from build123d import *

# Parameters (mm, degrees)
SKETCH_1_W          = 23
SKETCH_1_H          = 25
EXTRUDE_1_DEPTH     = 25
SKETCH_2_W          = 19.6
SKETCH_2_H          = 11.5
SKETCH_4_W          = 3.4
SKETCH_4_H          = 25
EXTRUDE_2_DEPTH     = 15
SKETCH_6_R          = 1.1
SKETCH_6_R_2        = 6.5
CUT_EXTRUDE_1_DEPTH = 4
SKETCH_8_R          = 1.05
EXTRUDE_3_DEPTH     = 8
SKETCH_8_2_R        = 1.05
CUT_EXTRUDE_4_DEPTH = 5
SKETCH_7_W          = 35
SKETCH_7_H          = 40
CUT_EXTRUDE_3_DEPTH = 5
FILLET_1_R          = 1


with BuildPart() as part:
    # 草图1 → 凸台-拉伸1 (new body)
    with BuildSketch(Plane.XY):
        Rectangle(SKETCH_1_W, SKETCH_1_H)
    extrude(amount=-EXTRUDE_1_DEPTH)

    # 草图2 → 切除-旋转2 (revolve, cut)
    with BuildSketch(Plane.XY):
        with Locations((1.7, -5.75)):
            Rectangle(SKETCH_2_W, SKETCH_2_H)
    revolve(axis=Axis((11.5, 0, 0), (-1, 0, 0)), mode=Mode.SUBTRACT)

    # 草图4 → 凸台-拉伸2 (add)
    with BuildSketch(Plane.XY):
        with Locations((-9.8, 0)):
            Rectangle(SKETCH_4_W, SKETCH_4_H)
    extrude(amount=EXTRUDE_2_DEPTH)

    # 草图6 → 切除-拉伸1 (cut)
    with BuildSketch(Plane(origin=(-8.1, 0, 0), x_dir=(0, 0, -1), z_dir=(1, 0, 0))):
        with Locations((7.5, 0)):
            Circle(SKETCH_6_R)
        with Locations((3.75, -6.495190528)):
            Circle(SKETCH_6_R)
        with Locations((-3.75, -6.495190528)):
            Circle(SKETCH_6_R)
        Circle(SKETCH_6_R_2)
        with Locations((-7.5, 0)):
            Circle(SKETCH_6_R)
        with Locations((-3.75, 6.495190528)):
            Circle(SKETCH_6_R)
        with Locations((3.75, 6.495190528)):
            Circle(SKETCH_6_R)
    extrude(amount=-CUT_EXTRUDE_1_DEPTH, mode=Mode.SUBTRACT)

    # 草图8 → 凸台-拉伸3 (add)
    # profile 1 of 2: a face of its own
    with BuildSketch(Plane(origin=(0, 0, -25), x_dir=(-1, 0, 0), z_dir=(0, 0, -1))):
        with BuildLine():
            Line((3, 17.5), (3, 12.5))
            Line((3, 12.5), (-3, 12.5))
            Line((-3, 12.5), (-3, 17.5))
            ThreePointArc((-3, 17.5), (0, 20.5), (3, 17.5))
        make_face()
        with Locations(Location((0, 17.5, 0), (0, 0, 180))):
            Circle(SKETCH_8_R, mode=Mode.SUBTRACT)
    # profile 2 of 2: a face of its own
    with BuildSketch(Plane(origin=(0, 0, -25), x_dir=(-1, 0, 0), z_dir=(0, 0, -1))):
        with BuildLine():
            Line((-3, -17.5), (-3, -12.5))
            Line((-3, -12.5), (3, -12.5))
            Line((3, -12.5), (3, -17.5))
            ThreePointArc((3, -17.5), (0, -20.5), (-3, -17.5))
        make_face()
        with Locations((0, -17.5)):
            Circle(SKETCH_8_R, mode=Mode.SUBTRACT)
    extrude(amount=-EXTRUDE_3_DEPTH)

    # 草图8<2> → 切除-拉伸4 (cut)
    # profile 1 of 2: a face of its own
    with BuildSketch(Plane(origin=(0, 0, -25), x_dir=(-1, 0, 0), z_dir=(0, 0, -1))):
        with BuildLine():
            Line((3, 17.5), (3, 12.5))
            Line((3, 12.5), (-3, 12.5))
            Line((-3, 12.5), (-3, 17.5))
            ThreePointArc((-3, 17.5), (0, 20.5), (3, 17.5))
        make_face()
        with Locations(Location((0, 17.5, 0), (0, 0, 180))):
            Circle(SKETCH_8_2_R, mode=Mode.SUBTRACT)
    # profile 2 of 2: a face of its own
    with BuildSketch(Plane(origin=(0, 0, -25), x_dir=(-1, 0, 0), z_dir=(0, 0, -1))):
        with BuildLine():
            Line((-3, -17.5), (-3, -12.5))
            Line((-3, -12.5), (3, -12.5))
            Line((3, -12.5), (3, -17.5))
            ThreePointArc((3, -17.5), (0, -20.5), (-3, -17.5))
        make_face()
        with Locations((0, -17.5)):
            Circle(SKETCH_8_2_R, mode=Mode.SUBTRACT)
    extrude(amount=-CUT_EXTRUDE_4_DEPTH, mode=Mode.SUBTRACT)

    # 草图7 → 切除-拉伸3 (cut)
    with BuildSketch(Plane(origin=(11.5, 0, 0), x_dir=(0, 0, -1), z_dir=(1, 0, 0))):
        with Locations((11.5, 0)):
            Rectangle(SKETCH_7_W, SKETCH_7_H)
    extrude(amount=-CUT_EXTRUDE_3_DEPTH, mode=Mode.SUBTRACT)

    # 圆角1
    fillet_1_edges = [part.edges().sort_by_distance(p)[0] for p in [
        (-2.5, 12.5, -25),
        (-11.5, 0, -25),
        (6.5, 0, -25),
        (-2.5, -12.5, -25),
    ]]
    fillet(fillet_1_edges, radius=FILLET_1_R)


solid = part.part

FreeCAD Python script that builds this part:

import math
import FreeCAD as App
import Part
import Sketcher

V = App.Vector


def edges_at(feature, points):
    """Names of the edges that pass closest to the given points."""
    edges = feature.Shape.Edges
    near = lambda p: min(range(len(edges)), key=lambda i: edges[i].distToShape(Part.Vertex(*p))[0])
    return sorted({f"Edge{near(p) + 1}" for p in points})

doc = App.newDocument("Part")
body = doc.addObject("PartDesign::Body", "Body")

sketch1 = body.newObject("Sketcher::SketchObject", "Sketch")
sketch1.AttachmentSupport = (doc.getObject("XY_Plane"), [""])
sketch1.MapMode = "FlatFace"
sketch1.addGeometry(Part.LineSegment(V(-12, 12, 0), V(-12, -12, 0)), False)
sketch1.addGeometry(Part.LineSegment(V(-12, -12, 0), V(12, -12, 0)), False)
sketch1.addGeometry(Part.LineSegment(V(12, -12, 0), V(12, 12, 0)), False)
sketch1.addGeometry(Part.LineSegment(V(12, 12, 0), V(-12, 12, 0)), False)
sketch1.addConstraint(Sketcher.Constraint("Coincident", 0, 2, 1, 1))
sketch1.addConstraint(Sketcher.Constraint("Coincident", 1, 2, 2, 1))
sketch1.addConstraint(Sketcher.Constraint("Coincident", 2, 2, 3, 1))
sketch1.addConstraint(Sketcher.Constraint("Coincident", 3, 2, 0, 1))
sketch1.addConstraint(Sketcher.Constraint("Vertical", 0))
sketch1.addConstraint(Sketcher.Constraint("Horizontal", 1))
sketch1.addConstraint(Sketcher.Constraint("Vertical", 2))
sketch1.addConstraint(Sketcher.Constraint("Horizontal", 3))
sketch1.addConstraint(Sketcher.Constraint("Symmetric", 0, 2, 2, 2, -1, 1))
sketch1.addConstraint(Sketcher.Constraint("DistanceX", 1, 1, 1, 2, 23.0))
sketch1.addConstraint(Sketcher.Constraint("DistanceY", 0, 2, 0, 1, 25.0))
pad1 = body.newObject("PartDesign::Pad", "Pad")
pad1.Profile = sketch1
pad1.Length = 25
pad1.Reversed = True

sketch2 = body.newObject("Sketcher::SketchObject", "Sketch001")
sketch2.AttachmentSupport = (doc.getObject("XY_Plane"), [""])
sketch2.MapMode = "FlatFace"
sketch2.addGeometry(Part.LineSegment(V(-8, 0, 0), V(-8, -12, 0)), False)
sketch2.addGeometry(Part.LineSegment(V(-8, -12, 0), V(12, -12, 0)), False)
sketch2.addGeometry(Part.LineSegment(V(12, -12, 0), V(12, 0, 0)), False)
sketch2.addGeometry(Part.LineSegment(V(12, 0, 0), V(-8, 0, 0)), False)
sketch2.addConstraint(Sketcher.Constraint("Coincident", 0, 2, 1, 1))
sketch2.addConstraint(Sketcher.Constraint("Coincident", 1, 2, 2, 1))
sketch2.addConstraint(Sketcher.Constraint("Coincident", 2, 2, 3, 1))
sketch2.addConstraint(Sketcher.Constraint("Coincident", 3, 2, 0, 1))
sketch2.addConstraint(Sketcher.Constraint("Vertical", 0))
sketch2.addConstraint(Sketcher.Constraint("Horizontal", 1))
sketch2.addConstraint(Sketcher.Constraint("Vertical", 2))
sketch2.addConstraint(Sketcher.Constraint("Horizontal", 3))
sketch2.addConstraint(Sketcher.Constraint("PointOnObject", 2, 2, -1))
sketch2.addConstraint(Sketcher.Constraint("DistanceX", 1, 1, 1, 2, 19.6))
sketch2.addConstraint(Sketcher.Constraint("DistanceY", 0, 2, 0, 1, 11.5))
sketch2.addConstraint(Sketcher.Constraint("DistanceX", 0, 2, -1, 1, 8.1))
groove = body.newObject("PartDesign::Groove", "Groove")
groove.Profile = sketch2
groove.ReferenceAxis = (sketch2, ["H_Axis"])
groove.Angle = 360

sketch3 = body.newObject("Sketcher::SketchObject", "Sketch002")
sketch3.AttachmentSupport = (doc.getObject("XY_Plane"), [""])
sketch3.MapMode = "FlatFace"
sketch3.addGeometry(Part.LineSegment(V(-11.5, 12.5, 0), V(-11.5, -12.5, 0)), False)
sketch3.addGeometry(Part.LineSegment(V(-11.5, -12.5, 0), V(-8.1, -12.5, 0)), False)
sketch3.addGeometry(Part.LineSegment(V(-8.1, -12.5, 0), V(-8.1, 12.5, 0)), False)
sketch3.addGeometry(Part.LineSegment(V(-8.1, 12.5, 0), V(-11.5, 12.5, 0)), False)
sketch3.addConstraint(Sketcher.Constraint("Coincident", 0, 2, 1, 1))
sketch3.addConstraint(Sketcher.Constraint("Coincident", 1, 2, 2, 1))
sketch3.addConstraint(Sketcher.Constraint("Coincident", 2, 2, 3, 1))
sketch3.addConstraint(Sketcher.Constraint("Coincident", 3, 2, 0, 1))
sketch3.addConstraint(Sketcher.Constraint("Vertical", 0))
sketch3.addConstraint(Sketcher.Constraint("Horizontal", 1))
sketch3.addConstraint(Sketcher.Constraint("Vertical", 2))
sketch3.addConstraint(Sketcher.Constraint("Horizontal", 3))
sketch3.addConstraint(Sketcher.Constraint("DistanceY", 0, 2, 0, 1, 25.0))
sketch3.addConstraint(Sketcher.Constraint("DistanceX", 1, 1, 1, 2, 3.4))
sketch3.addConstraint(Sketcher.Constraint("DistanceX", 0, 2, -1, 1, 11.5))
sketch3.addConstraint(Sketcher.Constraint("DistanceY", 0, 2, -1, 1, 12.5))
pad2 = body.newObject("PartDesign::Pad", "Pad001")
pad2.Profile = sketch3
pad2.Length = 15

sketch4 = body.newObject("Sketcher::SketchObject", "Sketch003")
sketch4.AttachmentSupport = (doc.getObject("YZ_Plane"), [""])
sketch4.MapMode = "FlatFace"
sketch4.AttachmentOffset = App.Placement(V(0, 0, -8.1), App.Rotation())
sketch4.addGeometry(Part.ArcOfCircle(Part.Circle(V(0, 0, 0), V(0, 0, 1), 6.5), math.radians(154), math.radians(206)), False)
sketch4.addGeometry(Part.ArcOfCircle(Part.Circle(V(-6.5, -3.8, 0), V(0, 0, 1), 1.1), math.radians(53), math.radians(367)), False)
sketch4.addGeometry(Part.ArcOfCircle(Part.Circle(V(0, 0, 0), V(0, 0, 1), 6.5), math.radians(-146), math.radians(-94)), False)
sketch4.addGeometry(Part.ArcOfCircle(Part.Circle(V(0, -7.5, 0), V(0, 0, 1), 1.1), math.radians(113), math.radians(427)), False)
sketch4.addGeometry(Part.ArcOfCircle(Part.Circle(V(0, 0, 0), V(0, 0, 1), 6.5), math.radians(-86), math.radians(-34)), False)
sketch4.addGeometry(Part.ArcOfCircle(Part.Circle(V(6.5, -3.8, 0), V(0, 0, 1), 1.1), math.radians(173), math.radians(487)), False)
sketch4.addGeometry(Part.ArcOfCircle(Part.Circle(V(0, 0, 0), V(0, 0, 1), 6.5), math.radians(-26), math.radians(26)), False)
sketch4.addGeometry(Part.ArcOfCircle(Part.Circle(V(6.5, 3.8, 0), V(0, 0, 1), 1.1), math.radians(-127), math.radians(187)), False)
sketch4.addGeometry(Part.ArcOfCircle(Part.Circle(V(0, 0, 0), V(0, 0, 1), 6.5), math.radians(34), math.radians(86)), False)
sketch4.addGeometry(Part.ArcOfCircle(Part.Circle(V(0, 7.5, 0), V(0, 0, 1), 1.1), math.radians(-67), math.radians(247)), False)
sketch4.addGeometry(Part.ArcOfCircle(Part.Circle(V(0, 0, 0), V(0, 0, 1), 6.5), math.radians(94), math.radians(146)), False)
sketch4.addGeometry(Part.ArcOfCircle(Part.Circle(V(-6.5, 3.8, 0), V(0, 0, 1), 1.1), math.radians(-7), math.radians(307)), False)
sketch4.addConstraint(Sketcher.Constraint("Coincident", 0, 2, 1, 1))
sketch4.addConstraint(Sketcher.Constraint("Coincident", 1, 2, 2, 1))
sketch4.addConstraint(Sketcher.Constraint("Coincident", 2, 2, 3, 1))
sketch4.addConstraint(Sketcher.Constraint("Coincident", 3, 2, 4, 1))
sketch4.addConstraint(Sketcher.Constraint("Coincident", 4, 2, 5, 1))
sketch4.addConstraint(Sketcher.Constraint("Coincident", 5, 2, 6, 1))
sketch4.addConstraint(Sketcher.Constraint("Coincident", 6, 2, 7, 1))
sketch4.addConstraint(Sketcher.Constraint("Coincident", 7, 2, 8, 1))
sketch4.addConstraint(Sketcher.Constraint("Coincident", 8, 2, 9, 1))
sketch4.addConstraint(Sketcher.Constraint("Coincident", 9, 2, 10, 1))
sketch4.addConstraint(Sketcher.Constraint("Coincident", 10, 2, 11, 1))
sketch4.addConstraint(Sketcher.Constraint("Coincident", 11, 2, 0, 1))
sketch4.addConstraint(Sketcher.Constraint("Coincident", 0, 3, -1, 1))
sketch4.addConstraint(Sketcher.Constraint("Coincident", 2, 3, -1, 1))
sketch4.addConstraint(Sketcher.Constraint("Coincident", 4, 3, -1, 1))
sketch4.addConstraint(Sketcher.Constraint("Coincident", 6, 3, -1, 1))
sketch4.addConstraint(Sketcher.Constraint("Coincident", 8, 3, -1, 1))
sketch4.addConstraint(Sketcher.Constraint("Coincident", 10, 3, -1, 1))
sketch4.addConstraint(Sketcher.Constraint("Equal", 0, 2))
sketch4.addConstraint(Sketcher.Constraint("Equal", 1, 3))
sketch4.addConstraint(Sketcher.Constraint("Equal", 2, 4))
sketch4.addConstraint(Sketcher.Constraint("Equal", 3, 5))
sketch4.addConstraint(Sketcher.Constraint("Equal", 4, 6))
sketch4.addConstraint(Sketcher.Constraint("Equal", 5, 7))
sketch4.addConstraint(Sketcher.Constraint("Equal", 6, 8))
sketch4.addConstraint(Sketcher.Constraint("Equal", 7, 9))
sketch4.addConstraint(Sketcher.Constraint("Equal", 8, 10))
sketch4.addConstraint(Sketcher.Constraint("Equal", 9, 11))
sketch4.addConstraint(Sketcher.Constraint("Symmetric", 1, 3, 7, 3, -1, 1))
sketch4.addConstraint(Sketcher.Constraint("Symmetric", 3, 3, 9, 3, -1, 1))
sketch4.addConstraint(Sketcher.Constraint("Symmetric", 5, 3, 11, 3, -1, 1))
sketch4.addConstraint(Sketcher.Constraint("Symmetric", 1, 3, 5, 3, -2))
sketch4.addConstraint(Sketcher.Constraint("PointOnObject", 3, 3, -2))
sketch4.addConstraint(Sketcher.Constraint("Radius", 0, 6.5))
sketch4.addConstraint(Sketcher.Constraint("Radius", 1, 1.1))
sketch4.addConstraint(Sketcher.Constraint("DistanceY", 3, 3, -1, 1, 7.5))
sketch4.addConstraint(Sketcher.Constraint("DistanceY", 5, 3, 7, 3, 7.5))
sketch4.addConstraint(Sketcher.Constraint("DistanceX", 1, 3, -1, 1, 6.495191))
pocket1 = body.newObject("PartDesign::Pocket", "Pocket")
pocket1.Profile = sketch4
pocket1.Length = 4

sketch5 = body.newObject("Sketcher::SketchObject", "Sketch004")
sketch5.AttachmentSupport = (doc.getObject("XY_Plane"), [""])
sketch5.MapMode = "FlatFace"
sketch5.AttachmentOffset = App.Placement(V(0, 0, -25), App.Rotation())
sketch5.addGeometry(Part.LineSegment(V(-3, 12.5, 0), V(-3, 17.5, 0)), False)
sketch5.addGeometry(Part.ArcOfCircle(Part.Circle(V(0, 17.5, 0), V(0, 0, 1), 3), math.radians(0), math.radians(180)), False)
sketch5.addGeometry(Part.LineSegment(V(3, 17.5, 0), V(3, 12.5, 0)), False)
sketch5.addGeometry(Part.LineSegment(V(3, 12.5, 0), V(-3, 12.5, 0)), False)
sketch5.addGeometry(Part.Circle(V(0, 17.5, 0), V(0, 0, 1), 1.1), False)
sketch5.addGeometry(Part.LineSegment(V(3, -12.5, 0), V(3, -17.5, 0)), False)
sketch5.addGeometry(Part.ArcOfCircle(Part.Circle(V(0, -17.5, 0), V(0, 0, 1), 3), math.radians(180), math.radians(360)), False)
sketch5.addGeometry(Part.LineSegment(V(-3, -17.5, 0), V(-3, -12.5, 0)), False)
sketch5.addGeometry(Part.LineSegment(V(-3, -12.5, 0), V(3, -12.5, 0)), False)
sketch5.addGeometry(Part.Circle(V(0, -17.5, 0), V(0, 0, 1), 1.1), False)
sketch5.addConstraint(Sketcher.Constraint("Tangent", 0, 2, 1, 2))
sketch5.addConstraint(Sketcher.Constraint("Tangent", 1, 1, 2, 1))
sketch5.addConstraint(Sketcher.Constraint("Coincident", 2, 2, 3, 1))
sketch5.addConstraint(Sketcher.Constraint("Coincident", 3, 2, 0, 1))
sketch5.addConstraint(Sketcher.Constraint("Tangent", 5, 2, 6, 2))
sketch5.addConstraint(Sketcher.Constraint("Tangent", 6, 1, 7, 1))
sketch5.addConstraint(Sketcher.Constraint("Coincident", 7, 2, 8, 1))
sketch5.addConstraint(Sketcher.Constraint("Coincident", 8, 2, 5, 1))
sketch5.addConstraint(Sketcher.Constraint("Vertical", 0))
sketch5.addConstraint(Sketcher.Constraint("Vertical", 2))
sketch5.addConstraint(Sketcher.Constraint("Horizontal", 3))
sketch5.addConstraint(Sketcher.Constraint("Vertical", 5))
sketch5.addConstraint(Sketcher.Constraint("Vertical", 7))
sketch5.addConstraint(Sketcher.Constraint("Horizontal", 8))
sketch5.addConstraint(Sketcher.Constraint("Coincident", 4, 3, 1, 3))
sketch5.addConstraint(Sketcher.Constraint("Coincident", 9, 3, 6, 3))
sketch5.addConstraint(Sketcher.Constraint("Equal", 1, 6))
sketch5.addConstraint(Sketcher.Constraint("Equal", 4, 9))
sketch5.addConstraint(Sketcher.Constraint("Symmetric", 1, 3, 6, 3, -1, 1))
sketch5.addConstraint(Sketcher.Constraint("Symmetric", 3, 2, 7, 2, -1))
sketch5.addConstraint(Sketcher.Constraint("Radius", 1, 3.0))
sketch5.addConstraint(Sketcher.Constraint("Diameter", 4, 2.1))
sketch5.addConstraint(Sketcher.Constraint("DistanceY", 0, 1, 0, 2, 5.0))
sketch5.addConstraint(Sketcher.Constraint("DistanceY", 6, 3, 1, 3, 35.0))
pad3 = body.newObject("PartDesign::Pad", "Pad002")
pad3.Profile = sketch5
pad3.Length = 8

sketch6 = body.newObject("Sketcher::SketchObject", "Sketch005")
sketch6.AttachmentSupport = (doc.getObject("XY_Plane"), [""])
sketch6.MapMode = "FlatFace"
sketch6.AttachmentOffset = App.Placement(V(0, 0, -25), App.Rotation())
sketch6.addGeometry(Part.LineSegment(V(-3, 12.5, 0), V(-3, 17.5, 0)), False)
sketch6.addGeometry(Part.ArcOfCircle(Part.Circle(V(0, 17.5, 0), V(0, 0, 1), 3), math.radians(0), math.radians(180)), False)
sketch6.addGeometry(Part.LineSegment(V(3, 17.5, 0), V(3, 12.5, 0)), False)
sketch6.addGeometry(Part.LineSegment(V(3, 12.5, 0), V(-3, 12.5, 0)), False)
sketch6.addGeometry(Part.Circle(V(0, 17.5, 0), V(0, 0, 1), 1.1), False)
sketch6.addGeometry(Part.LineSegment(V(3, -12.5, 0), V(3, -17.5, 0)), False)
sketch6.addGeometry(Part.ArcOfCircle(Part.Circle(V(0, -17.5, 0), V(0, 0, 1), 3), math.radians(180), math.radians(360)), False)
sketch6.addGeometry(Part.LineSegment(V(-3, -17.5, 0), V(-3, -12.5, 0)), False)
sketch6.addGeometry(Part.LineSegment(V(-3, -12.5, 0), V(3, -12.5, 0)), False)
sketch6.addGeometry(Part.Circle(V(0, -17.5, 0), V(0, 0, 1), 1.1), False)
sketch6.addConstraint(Sketcher.Constraint("Tangent", 0, 2, 1, 2))
sketch6.addConstraint(Sketcher.Constraint("Tangent", 1, 1, 2, 1))
sketch6.addConstraint(Sketcher.Constraint("Coincident", 2, 2, 3, 1))
sketch6.addConstraint(Sketcher.Constraint("Coincident", 3, 2, 0, 1))
sketch6.addConstraint(Sketcher.Constraint("Tangent", 5, 2, 6, 2))
sketch6.addConstraint(Sketcher.Constraint("Tangent", 6, 1, 7, 1))
sketch6.addConstraint(Sketcher.Constraint("Coincident", 7, 2, 8, 1))
sketch6.addConstraint(Sketcher.Constraint("Coincident", 8, 2, 5, 1))
sketch6.addConstraint(Sketcher.Constraint("Vertical", 0))
sketch6.addConstraint(Sketcher.Constraint("Vertical", 2))
sketch6.addConstraint(Sketcher.Constraint("Horizontal", 3))
sketch6.addConstraint(Sketcher.Constraint("Vertical", 5))
sketch6.addConstraint(Sketcher.Constraint("Vertical", 7))
sketch6.addConstraint(Sketcher.Constraint("Horizontal", 8))
sketch6.addConstraint(Sketcher.Constraint("Coincident", 4, 3, 1, 3))
sketch6.addConstraint(Sketcher.Constraint("Coincident", 9, 3, 6, 3))
sketch6.addConstraint(Sketcher.Constraint("Equal", 1, 6))
sketch6.addConstraint(Sketcher.Constraint("Equal", 4, 9))
sketch6.addConstraint(Sketcher.Constraint("Symmetric", 1, 3, 6, 3, -1, 1))
sketch6.addConstraint(Sketcher.Constraint("Symmetric", 3, 2, 7, 2, -1))
sketch6.addConstraint(Sketcher.Constraint("Radius", 1, 3.0))
sketch6.addConstraint(Sketcher.Constraint("Diameter", 4, 2.1))
sketch6.addConstraint(Sketcher.Constraint("DistanceY", 0, 1, 0, 2, 5.0))
sketch6.addConstraint(Sketcher.Constraint("DistanceY", 6, 3, 1, 3, 35.0))
pocket2 = body.newObject("PartDesign::Pocket", "Pocket001")
pocket2.Profile = sketch6
pocket2.Length = 5
pocket2.Reversed = True

sketch7 = body.newObject("Sketcher::SketchObject", "Sketch006")
sketch7.AttachmentSupport = (doc.getObject("YZ_Plane"), [""])
sketch7.MapMode = "FlatFace"
sketch7.AttachmentOffset = App.Placement(V(0, 0, 11.5), App.Rotation())
sketch7.addGeometry(Part.LineSegment(V(20, 6, 0), V(-20, 6, 0)), False)
sketch7.addGeometry(Part.LineSegment(V(-20, 6, 0), V(-20, -29, 0)), False)
sketch7.addGeometry(Part.LineSegment(V(-20, -29, 0), V(20, -29, 0)), False)
sketch7.addGeometry(Part.LineSegment(V(20, -29, 0), V(20, 6, 0)), False)
sketch7.addConstraint(Sketcher.Constraint("Coincident", 0, 2, 1, 1))
sketch7.addConstraint(Sketcher.Constraint("Coincident", 1, 2, 2, 1))
sketch7.addConstraint(Sketcher.Constraint("Coincident", 2, 2, 3, 1))
sketch7.addConstraint(Sketcher.Constraint("Coincident", 3, 2, 0, 1))
sketch7.addConstraint(Sketcher.Constraint("Horizontal", 0))
sketch7.addConstraint(Sketcher.Constraint("Vertical", 1))
sketch7.addConstraint(Sketcher.Constraint("Horizontal", 2))
sketch7.addConstraint(Sketcher.Constraint("Vertical", 3))
sketch7.addConstraint(Sketcher.Constraint("DistanceX", 0, 2, 0, 1, 40.0))
sketch7.addConstraint(Sketcher.Constraint("DistanceY", 1, 2, 1, 1, 35.0))
sketch7.addConstraint(Sketcher.Constraint("DistanceX", 0, 2, -1, 1, 20.0))
sketch7.addConstraint(Sketcher.Constraint("DistanceY", -1, 1, 0, 2, 6.0))
pocket3 = body.newObject("PartDesign::Pocket", "Pocket002")
pocket3.Profile = sketch7
pocket3.Length = 5
doc.recompute()

fillet = body.newObject("PartDesign::Fillet", "Fillet")
fillet.Base = (pocket3, edges_at(pocket3, [
    (-2.5, 12.5, -25),
    (-11.5, 0, -25),
    (6.5, 0, -25),
    (-2.5, -12.5, -25),
]))
fillet.Radius = 1

doc.recompute()
